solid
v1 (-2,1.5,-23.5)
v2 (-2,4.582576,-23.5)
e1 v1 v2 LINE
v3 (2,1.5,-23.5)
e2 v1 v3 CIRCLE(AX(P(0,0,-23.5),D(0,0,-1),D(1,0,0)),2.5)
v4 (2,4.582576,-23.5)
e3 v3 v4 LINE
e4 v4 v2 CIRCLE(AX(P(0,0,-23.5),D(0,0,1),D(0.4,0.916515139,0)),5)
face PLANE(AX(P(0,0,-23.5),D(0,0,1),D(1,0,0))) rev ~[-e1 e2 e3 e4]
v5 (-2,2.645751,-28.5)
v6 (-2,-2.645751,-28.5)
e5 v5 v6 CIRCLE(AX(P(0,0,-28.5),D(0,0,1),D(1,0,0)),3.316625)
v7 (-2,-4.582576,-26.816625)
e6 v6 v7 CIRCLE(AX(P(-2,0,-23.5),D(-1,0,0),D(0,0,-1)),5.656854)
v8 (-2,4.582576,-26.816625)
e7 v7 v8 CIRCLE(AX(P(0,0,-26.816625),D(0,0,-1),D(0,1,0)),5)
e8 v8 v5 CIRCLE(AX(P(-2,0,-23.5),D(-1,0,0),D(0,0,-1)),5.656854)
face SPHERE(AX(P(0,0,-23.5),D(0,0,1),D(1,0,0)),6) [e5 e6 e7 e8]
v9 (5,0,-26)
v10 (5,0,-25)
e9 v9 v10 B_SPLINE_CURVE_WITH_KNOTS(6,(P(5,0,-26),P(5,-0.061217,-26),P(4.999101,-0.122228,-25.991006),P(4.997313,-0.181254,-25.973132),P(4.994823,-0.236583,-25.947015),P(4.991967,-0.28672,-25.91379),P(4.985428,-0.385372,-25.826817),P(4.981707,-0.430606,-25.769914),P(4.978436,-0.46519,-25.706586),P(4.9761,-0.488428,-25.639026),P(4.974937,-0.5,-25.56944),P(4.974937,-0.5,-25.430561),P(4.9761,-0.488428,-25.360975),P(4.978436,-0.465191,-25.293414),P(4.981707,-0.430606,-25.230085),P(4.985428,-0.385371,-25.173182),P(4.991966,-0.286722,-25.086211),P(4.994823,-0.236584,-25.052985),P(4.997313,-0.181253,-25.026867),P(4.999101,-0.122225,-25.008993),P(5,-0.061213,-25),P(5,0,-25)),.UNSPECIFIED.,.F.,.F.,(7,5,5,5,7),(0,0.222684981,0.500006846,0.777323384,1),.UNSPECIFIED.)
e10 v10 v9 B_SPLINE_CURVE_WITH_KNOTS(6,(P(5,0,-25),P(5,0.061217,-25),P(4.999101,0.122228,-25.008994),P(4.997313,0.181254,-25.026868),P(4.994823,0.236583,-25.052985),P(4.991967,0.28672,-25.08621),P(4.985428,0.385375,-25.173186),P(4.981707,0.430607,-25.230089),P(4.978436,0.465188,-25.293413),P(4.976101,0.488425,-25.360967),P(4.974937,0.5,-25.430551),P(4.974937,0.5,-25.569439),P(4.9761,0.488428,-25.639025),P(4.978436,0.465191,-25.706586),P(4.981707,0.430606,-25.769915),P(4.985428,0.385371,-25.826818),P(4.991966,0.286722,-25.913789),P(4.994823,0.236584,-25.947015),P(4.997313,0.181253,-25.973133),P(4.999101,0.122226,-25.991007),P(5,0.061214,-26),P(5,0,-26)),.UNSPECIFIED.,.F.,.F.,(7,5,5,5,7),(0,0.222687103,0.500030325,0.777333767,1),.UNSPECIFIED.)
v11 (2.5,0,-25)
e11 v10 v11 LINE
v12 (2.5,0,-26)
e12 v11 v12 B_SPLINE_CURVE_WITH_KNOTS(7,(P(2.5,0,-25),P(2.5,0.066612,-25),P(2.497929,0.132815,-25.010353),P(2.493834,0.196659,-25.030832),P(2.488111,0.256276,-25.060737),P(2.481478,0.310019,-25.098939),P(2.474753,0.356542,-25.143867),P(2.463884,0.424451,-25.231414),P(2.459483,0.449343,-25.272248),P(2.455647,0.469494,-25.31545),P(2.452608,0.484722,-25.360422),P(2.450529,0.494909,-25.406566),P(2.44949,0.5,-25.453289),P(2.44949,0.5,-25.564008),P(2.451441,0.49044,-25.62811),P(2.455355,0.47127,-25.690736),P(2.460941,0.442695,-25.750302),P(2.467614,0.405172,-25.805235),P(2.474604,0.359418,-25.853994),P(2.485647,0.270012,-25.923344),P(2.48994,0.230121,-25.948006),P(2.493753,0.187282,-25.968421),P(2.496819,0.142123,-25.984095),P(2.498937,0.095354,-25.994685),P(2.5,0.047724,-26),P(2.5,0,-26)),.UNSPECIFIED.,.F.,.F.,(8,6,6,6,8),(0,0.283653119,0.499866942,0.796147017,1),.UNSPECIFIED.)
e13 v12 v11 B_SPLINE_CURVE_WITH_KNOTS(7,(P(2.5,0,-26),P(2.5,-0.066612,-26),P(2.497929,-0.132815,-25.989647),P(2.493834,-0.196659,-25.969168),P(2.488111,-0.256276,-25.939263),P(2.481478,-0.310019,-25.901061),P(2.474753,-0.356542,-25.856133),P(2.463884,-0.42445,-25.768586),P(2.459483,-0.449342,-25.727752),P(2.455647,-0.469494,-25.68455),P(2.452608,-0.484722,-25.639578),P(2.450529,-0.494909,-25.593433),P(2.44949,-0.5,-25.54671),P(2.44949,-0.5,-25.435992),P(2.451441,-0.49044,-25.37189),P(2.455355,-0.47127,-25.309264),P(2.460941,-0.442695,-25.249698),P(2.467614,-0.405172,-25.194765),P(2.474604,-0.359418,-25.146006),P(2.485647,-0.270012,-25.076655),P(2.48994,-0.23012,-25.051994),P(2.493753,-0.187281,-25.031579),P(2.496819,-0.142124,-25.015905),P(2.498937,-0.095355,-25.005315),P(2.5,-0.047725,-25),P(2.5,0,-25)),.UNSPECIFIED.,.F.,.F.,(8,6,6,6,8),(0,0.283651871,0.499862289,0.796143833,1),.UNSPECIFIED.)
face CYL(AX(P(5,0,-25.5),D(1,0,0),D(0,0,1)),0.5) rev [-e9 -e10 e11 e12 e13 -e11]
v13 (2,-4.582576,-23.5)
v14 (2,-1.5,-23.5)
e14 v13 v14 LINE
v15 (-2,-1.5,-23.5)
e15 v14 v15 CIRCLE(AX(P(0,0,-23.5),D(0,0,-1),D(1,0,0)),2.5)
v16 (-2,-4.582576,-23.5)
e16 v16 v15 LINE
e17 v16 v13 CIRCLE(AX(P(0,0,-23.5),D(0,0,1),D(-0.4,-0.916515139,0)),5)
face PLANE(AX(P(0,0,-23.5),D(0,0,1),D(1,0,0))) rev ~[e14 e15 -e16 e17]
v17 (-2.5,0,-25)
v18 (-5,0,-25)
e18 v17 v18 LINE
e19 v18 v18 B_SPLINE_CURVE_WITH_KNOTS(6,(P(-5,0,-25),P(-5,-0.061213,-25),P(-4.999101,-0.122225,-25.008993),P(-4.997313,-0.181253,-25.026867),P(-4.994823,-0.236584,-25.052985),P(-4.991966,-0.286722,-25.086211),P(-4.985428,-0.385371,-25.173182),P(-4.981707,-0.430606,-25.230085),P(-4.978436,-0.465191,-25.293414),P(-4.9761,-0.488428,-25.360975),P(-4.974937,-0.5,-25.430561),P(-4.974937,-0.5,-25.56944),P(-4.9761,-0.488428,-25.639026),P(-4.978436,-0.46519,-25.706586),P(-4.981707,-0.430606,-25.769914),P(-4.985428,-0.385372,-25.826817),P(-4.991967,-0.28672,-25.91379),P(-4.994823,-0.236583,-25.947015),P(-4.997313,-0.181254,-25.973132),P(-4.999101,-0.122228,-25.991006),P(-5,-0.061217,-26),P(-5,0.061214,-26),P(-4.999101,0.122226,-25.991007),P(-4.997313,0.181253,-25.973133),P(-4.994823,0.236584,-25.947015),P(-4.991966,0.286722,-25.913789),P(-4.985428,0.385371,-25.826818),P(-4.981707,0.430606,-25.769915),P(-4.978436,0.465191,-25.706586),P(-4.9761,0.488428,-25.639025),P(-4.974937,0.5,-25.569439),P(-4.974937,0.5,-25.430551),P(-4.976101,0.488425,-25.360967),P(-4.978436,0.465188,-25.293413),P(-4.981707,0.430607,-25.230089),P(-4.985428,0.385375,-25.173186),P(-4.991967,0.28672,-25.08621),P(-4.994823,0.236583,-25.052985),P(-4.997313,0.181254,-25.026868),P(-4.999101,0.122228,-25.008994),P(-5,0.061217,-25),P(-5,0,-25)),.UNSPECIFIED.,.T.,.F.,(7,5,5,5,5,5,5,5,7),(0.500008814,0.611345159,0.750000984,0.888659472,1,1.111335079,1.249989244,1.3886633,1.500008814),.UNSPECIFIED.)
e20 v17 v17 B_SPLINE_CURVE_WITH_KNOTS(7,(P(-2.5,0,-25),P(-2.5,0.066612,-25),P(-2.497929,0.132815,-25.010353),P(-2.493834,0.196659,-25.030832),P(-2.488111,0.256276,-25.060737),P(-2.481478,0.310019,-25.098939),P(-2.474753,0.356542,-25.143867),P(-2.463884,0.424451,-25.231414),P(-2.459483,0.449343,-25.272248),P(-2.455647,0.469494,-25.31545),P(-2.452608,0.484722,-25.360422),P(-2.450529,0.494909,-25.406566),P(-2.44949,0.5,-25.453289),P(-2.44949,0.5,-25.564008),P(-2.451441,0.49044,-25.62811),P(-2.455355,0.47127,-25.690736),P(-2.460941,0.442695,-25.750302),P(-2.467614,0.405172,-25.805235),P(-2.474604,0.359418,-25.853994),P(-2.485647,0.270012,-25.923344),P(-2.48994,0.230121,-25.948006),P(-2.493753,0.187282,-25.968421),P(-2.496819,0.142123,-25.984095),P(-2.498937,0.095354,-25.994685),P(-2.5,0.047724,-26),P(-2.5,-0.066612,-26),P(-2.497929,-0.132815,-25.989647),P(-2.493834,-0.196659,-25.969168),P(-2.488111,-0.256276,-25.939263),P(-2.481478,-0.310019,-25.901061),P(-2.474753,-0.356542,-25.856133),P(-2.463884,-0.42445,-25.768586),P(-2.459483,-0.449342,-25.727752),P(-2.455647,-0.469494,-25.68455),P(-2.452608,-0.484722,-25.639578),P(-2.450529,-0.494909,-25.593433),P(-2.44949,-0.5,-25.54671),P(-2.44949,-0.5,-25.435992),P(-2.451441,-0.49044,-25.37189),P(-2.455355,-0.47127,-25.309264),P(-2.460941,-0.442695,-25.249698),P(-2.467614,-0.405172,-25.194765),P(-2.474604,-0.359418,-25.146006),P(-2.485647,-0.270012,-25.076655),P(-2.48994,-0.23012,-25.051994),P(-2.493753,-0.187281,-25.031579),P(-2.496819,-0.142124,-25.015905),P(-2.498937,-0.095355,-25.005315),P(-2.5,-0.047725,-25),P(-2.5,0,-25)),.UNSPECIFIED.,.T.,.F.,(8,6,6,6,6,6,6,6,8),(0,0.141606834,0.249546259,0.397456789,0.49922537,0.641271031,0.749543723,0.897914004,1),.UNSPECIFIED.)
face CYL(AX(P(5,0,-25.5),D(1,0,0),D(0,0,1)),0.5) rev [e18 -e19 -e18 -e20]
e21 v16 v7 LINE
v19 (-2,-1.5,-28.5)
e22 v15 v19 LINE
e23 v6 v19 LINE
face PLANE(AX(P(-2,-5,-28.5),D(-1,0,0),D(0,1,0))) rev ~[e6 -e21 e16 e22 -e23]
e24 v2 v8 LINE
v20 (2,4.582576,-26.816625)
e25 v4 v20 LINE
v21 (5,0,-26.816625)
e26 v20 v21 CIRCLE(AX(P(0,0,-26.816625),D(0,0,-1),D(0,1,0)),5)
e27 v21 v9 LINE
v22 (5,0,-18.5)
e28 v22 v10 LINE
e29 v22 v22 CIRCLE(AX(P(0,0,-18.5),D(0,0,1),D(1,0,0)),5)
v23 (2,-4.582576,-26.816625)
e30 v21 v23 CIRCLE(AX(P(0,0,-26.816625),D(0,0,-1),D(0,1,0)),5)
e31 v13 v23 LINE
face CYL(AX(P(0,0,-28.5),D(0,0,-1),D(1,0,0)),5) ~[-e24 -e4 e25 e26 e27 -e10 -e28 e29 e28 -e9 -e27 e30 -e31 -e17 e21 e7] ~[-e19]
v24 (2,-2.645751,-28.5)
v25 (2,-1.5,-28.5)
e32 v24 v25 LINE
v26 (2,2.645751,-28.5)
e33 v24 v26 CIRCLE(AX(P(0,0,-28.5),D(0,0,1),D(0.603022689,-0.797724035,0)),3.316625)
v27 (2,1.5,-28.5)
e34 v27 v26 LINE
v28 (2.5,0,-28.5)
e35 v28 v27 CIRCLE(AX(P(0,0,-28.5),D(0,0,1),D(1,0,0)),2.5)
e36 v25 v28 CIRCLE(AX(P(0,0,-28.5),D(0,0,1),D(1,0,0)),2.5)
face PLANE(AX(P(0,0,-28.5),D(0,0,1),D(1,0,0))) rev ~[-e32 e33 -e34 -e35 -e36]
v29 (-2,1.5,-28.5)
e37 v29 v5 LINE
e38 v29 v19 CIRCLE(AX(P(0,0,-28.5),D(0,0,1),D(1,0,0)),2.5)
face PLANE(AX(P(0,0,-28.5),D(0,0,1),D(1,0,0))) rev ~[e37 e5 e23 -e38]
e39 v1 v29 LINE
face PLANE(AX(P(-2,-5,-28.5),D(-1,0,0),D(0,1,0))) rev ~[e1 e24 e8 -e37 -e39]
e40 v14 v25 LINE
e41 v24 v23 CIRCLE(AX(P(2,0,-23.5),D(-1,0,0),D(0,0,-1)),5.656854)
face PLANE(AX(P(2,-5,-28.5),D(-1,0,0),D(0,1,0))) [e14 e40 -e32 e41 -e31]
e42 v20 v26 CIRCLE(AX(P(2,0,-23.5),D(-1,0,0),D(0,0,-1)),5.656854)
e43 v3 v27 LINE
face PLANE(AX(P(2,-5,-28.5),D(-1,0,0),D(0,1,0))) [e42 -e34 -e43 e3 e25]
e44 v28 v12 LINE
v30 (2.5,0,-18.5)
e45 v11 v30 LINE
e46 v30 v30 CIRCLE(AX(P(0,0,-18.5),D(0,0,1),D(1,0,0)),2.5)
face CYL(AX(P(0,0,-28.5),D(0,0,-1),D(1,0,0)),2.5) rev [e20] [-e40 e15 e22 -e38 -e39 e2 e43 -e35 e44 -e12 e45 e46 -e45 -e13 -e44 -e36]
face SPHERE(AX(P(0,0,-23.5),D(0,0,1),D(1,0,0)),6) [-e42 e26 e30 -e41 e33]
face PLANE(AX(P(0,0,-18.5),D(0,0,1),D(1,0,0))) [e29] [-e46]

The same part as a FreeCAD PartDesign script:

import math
import FreeCAD as App
import Part
import Sketcher
from FreeCAD import Vector


def add_polygon(sketch, points):
    """Adds a closed chain of lines whose ends are joined by coincident constraints."""
    first, n = sketch.GeometryCount, len(points)
    for a, b in zip(points, points[1:] + points[:1]):
        sketch.addGeometry(Part.LineSegment(App.Vector(*a, 0), App.Vector(*b, 0)), False)
    for i in range(n):
        sketch.addConstraint(Sketcher.Constraint("Coincident", first + i, 2, first + (i + 1) % n, 1))

doc = App.newDocument("Part")
body = doc.addObject("PartDesign::Body", "Body")

# Sketch on XY plane
sketch1 = doc.addObject("Sketcher::SketchObject", "Sketch")
body.addObject(sketch1)
sketch1.AttachmentSupport = (doc.XY_Plane, [""])
sketch1.MapMode = "FlatFace"
sketch1.AttachmentOffset = App.Placement(Vector(0, 0, -6), App.Rotation())
sketch1.addGeometry(Part.Circle(Vector(18, 0, 0), Vector(0, 0, 1), 3), False)
sketch1.addConstraint([
    Sketcher.Constraint("PointOnObject", 0, 3, -1),
    Sketcher.Constraint("Diameter", 0, 6.0),
    Sketcher.Constraint("DistanceX", -1, 1, 0, 3, 18.0),
])
pad1 = doc.addObject("PartDesign::Pad", "Pad")
body.addObject(pad1)
pad1.Profile = sketch1
pad1.Length = 10
body2 = doc.addObject("PartDesign::Body", "Body001")

# Sketch on XY plane
sketch2 = doc.addObject("Sketcher::SketchObject", "Sketch001")
body2.addObject(sketch2)
sketch2.AttachmentSupport = (doc.getObject("XY_Plane001"), [""])
sketch2.MapMode = "FlatFace"
sketch2.AttachmentOffset = App.Placement(Vector(0, 0, -4), App.Rotation())
sketch2.addGeometry(Part.Circle(Vector(18, 0, 0), Vector(0, 0, 1), 5), False)
sketch2.addConstraint([
    Sketcher.Constraint("PointOnObject", 0, 3, -1),
    Sketcher.Constraint("Diameter", 0, 10.0),
    Sketcher.Constraint("DistanceX", -1, 1, 0, 3, 18.0),
])
pad2 = doc.addObject("PartDesign::Pad", "Pad001")
body2.addObject(pad2)
pad2.Profile = sketch2
pad2.Length = 4
doc.recompute()

boolean = doc.addObject("PartDesign::Boolean", "Boolean")
body2.addObject(boolean)
boolean.Type = "Cut"
boolean.addObjects([body])
body3 = doc.addObject("PartDesign::Body", "Body002")
doc.recompute()

body2.Placement = App.Placement(Vector(-18, 0, 0), App.Rotation(Vector(0, 0, 1), 0))
boolean2 = doc.addObject("PartDesign::Boolean", "Boolean001")
body3.addObject(boolean2)
boolean2.Type = "Fuse"
boolean2.addObjects([body2])
body4 = doc.addObject("PartDesign::Body", "Body003")

# Sketch on XZ plane
sketch3 = doc.addObject("Sketcher::SketchObject", "Sketch002")
body4.addObject(sketch3)
sketch3.AttachmentSupport = (doc.getObject("XZ_Plane003"), [""])
sketch3.MapMode = "FlatFace"
sketch3.addGeometry([
    Part.ArcOfCircle(Part.Circle(Vector(0, -5, 0), Vector(0, 0, 1), 6), math.radians(-90), math.radians(90)),
    Part.LineSegment(Vector(0, 1, 0), Vector(0, -11, 0)),
], False)
sketch3.addConstraint([
    Sketcher.Constraint("Coincident", 0, 1, 1, 2),
    Sketcher.Constraint("Coincident", 1, 1, 0, 2),
    Sketcher.Constraint("Vertical", 1),
    Sketcher.Constraint("PointOnObject", 0, 3, -2),
    Sketcher.Constraint("PointOnObject", 0, 1, -2),
    Sketcher.Constraint("Radius", 0, 6.0),
    Sketcher.Constraint("DistanceY", 0, 3, -1, 1, 5.0),
])
revolution = doc.addObject("PartDesign::Revolution", "Revolution")
body4.addObject(revolution)
revolution.Profile = sketch3
revolution.ReferenceAxis = (sketch3, ["V_Axis"])
revolution.Angle = 360
body5 = doc.addObject("PartDesign::Body", "Body004")

# Sketch on YZ plane
sketch4 = doc.addObject("Sketcher::SketchObject", "Sketch003")
body5.addObject(sketch4)
sketch4.AttachmentSupport = (doc.getObject("YZ_Plane004"), [""])
sketch4.MapMode = "FlatFace"
sketch4.AttachmentOffset = App.Placement(Vector(0, 0, 5), App.Rotation())
sketch4.addGeometry(Part.Circle(Vector(0, -7, 0), Vector(0, 0, 1), 0.5), False)
sketch4.addConstraint([
    Sketcher.Constraint("PointOnObject", 0, 3, -2),
    Sketcher.Constraint("Diameter", 0, 1.0),
    Sketcher.Constraint("DistanceY", 0, 3, -1, 1, 7.0),
])
pad3 = doc.addObject("PartDesign::Pad", "Pad002")
body5.addObject(pad3)
pad3.Profile = sketch4
pad3.Length = 10
pad3.Reversed = True
body6 = doc.addObject("PartDesign::Body", "Body005")

# Sketch on XY plane
sketch5 = doc.addObject("Sketcher::SketchObject", "Sketch004")
body6.addObject(sketch5)
sketch5.AttachmentSupport = (doc.getObject("XY_Plane005"), [""])
sketch5.MapMode = "FlatFace"
sketch5.AttachmentOffset = App.Placement(Vector(0, 0, -10), App.Rotation())
sketch5.addGeometry(Part.Circle(Vector(0, 0, 0), Vector(0, 0, 1), 2.5), False)
sketch5.addConstraint([
    Sketcher.Constraint("Coincident", 0, 3, -1, 1),
    Sketcher.Constraint("Diameter", 0, 5.0),
])
pad4 = doc.addObject("PartDesign::Pad", "Pad003")
body6.addObject(pad4)
pad4.Profile = sketch5
pad4.Length = 10
body7 = doc.addObject("PartDesign::Body", "Body006")

# Sketch on XY plane
sketch6 = doc.addObject("Sketcher::SketchObject", "Sketch005")
body7.addObject(sketch6)
sketch6.AttachmentSupport = (doc.getObject("XY_Plane006"), [""])
sketch6.MapMode = "FlatFace"
sketch6.AttachmentOffset = App.Placement(Vector(0, 0, -10), App.Rotation())
add_polygon(sketch6, [(-2, 5), (-2, -5), (2, -5), (2, 5)])  # lines 0-3
sketch6.addConstraint([
    Sketcher.Constraint("Vertical", 0),
    Sketcher.Constraint("Horizontal", 1),
    Sketcher.Constraint("Vertical", 2),
    Sketcher.Constraint("Horizontal", 3),
    Sketcher.Constraint("Symmetric", 0, 2, 2, 2, -1, 1),
    Sketcher.Constraint("DistanceX", 1, 1, 1, 2, 4.0),
    Sketcher.Constraint("DistanceY", 0, 2, 0, 1, 10.0),
])
pad5 = doc.addObject("PartDesign::Pad", "Pad004")
body7.addObject(pad5)
pad5.Profile = sketch6
pad5.Length = 5
body8 = doc.addObject("PartDesign::Body", "Body007")

# Sketch on XY plane
sketch7 = doc.addObject("Sketcher::SketchObject", "Sketch006")
body8.addObject(sketch7)
sketch7.AttachmentSupport = (doc.getObject("XY_Plane007"), [""])
sketch7.MapMode = "FlatFace"
sketch7.AttachmentOffset = App.Placement(Vector(0, 0, -10), App.Rotation())
sketch7.addGeometry(Part.Circle(Vector(0, 0, 0), Vector(0, 0, 1), 5), False)
sketch7.addConstraint([
    Sketcher.Constraint("Coincident", 0, 3, -1, 1),
    Sketcher.Constraint("Diameter", 0, 10.0),
])
pad6 = doc.addObject("PartDesign::Pad", "Pad005")
body8.addObject(pad6)
pad6.Profile = sketch7
pad6.Length = 10
doc.recompute()

boolean3 = doc.addObject("PartDesign::Boolean", "Boolean002")
body8.addObject(boolean3)
boolean3.Type = "Cut"
boolean3.addObjects([body7])
doc.recompute()

boolean4 = doc.addObject("PartDesign::Boolean", "Boolean003")
body8.addObject(boolean4)
boolean4.Type = "Cut"
boolean4.addObjects([body6])
doc.recompute()

boolean5 = doc.addObject("PartDesign::Boolean", "Boolean004")
body8.addObject(boolean5)
boolean5.Type = "Cut"
boolean5.addObjects([body5])
doc.recompute()

boolean6 = doc.addObject("PartDesign::Boolean", "Boolean005")
body8.addObject(boolean6)
boolean6.Type = "Common"
boolean6.addObjects([body4])
doc.recompute()

boolean7 = doc.addObject("PartDesign::Boolean", "Boolean006")
body8.addObject(boolean7)
boolean7.Type = "Fuse"
boolean7.addObjects([body3])
body9 = doc.addObject("PartDesign::Body", "Body008")
doc.recompute()

body8.Placement = App.Placement(Vector(0, 0, -18.5), App.Rotation(Vector(0, 0, 1), 0))
boolean8 = doc.addObject("PartDesign::Boolean", "Boolean007")
body9.addObject(boolean8)
boolean8.Type = "Fuse"
boolean8.addObjects([body8])

doc.recompute()
